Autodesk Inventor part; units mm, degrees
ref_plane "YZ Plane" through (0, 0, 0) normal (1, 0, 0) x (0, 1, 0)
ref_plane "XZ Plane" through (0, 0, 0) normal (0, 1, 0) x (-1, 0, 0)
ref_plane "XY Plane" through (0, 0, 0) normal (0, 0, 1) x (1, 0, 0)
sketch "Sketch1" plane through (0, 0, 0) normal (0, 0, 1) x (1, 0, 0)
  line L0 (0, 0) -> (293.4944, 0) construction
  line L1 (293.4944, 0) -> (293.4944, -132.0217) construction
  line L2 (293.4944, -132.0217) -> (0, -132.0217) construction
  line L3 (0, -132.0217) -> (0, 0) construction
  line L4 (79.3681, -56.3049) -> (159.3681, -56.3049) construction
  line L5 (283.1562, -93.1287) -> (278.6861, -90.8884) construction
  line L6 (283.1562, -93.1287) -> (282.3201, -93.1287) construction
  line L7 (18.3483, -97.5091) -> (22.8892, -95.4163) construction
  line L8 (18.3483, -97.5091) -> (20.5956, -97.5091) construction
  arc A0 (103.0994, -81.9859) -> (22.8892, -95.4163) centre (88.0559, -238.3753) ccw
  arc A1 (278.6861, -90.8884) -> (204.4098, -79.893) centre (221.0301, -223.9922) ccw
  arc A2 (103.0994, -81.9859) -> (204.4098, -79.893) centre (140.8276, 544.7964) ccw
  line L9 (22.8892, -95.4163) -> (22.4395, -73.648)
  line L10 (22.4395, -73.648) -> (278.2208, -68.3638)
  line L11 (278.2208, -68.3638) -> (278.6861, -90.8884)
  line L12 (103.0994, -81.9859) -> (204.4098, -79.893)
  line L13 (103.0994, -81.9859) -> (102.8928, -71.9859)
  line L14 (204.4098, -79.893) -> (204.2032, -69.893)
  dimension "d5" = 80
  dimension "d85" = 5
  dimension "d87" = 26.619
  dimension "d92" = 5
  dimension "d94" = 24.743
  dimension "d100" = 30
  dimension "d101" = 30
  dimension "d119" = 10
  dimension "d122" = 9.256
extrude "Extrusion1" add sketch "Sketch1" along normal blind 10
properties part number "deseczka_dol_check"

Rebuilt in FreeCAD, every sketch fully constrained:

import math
import FreeCAD as App
import Part
import Sketcher

V = App.Vector
Q = App.Units.Quantity

doc = App.newDocument("Part")
params = doc.addObject("Spreadsheet::Sheet", "Params")
for row, (alias, value) in enumerate([
    ("pad1_length", "10 mm"),
], start=1):
    params.set(f"A{row}", alias)
    params.set(f"B{row}", "=" + value)
    params.setAlias(f"B{row}", alias)

body = doc.addObject("PartDesign::Body", "Body")

# Sketch on XY plane
sketch1 = body.newObject("Sketcher::SketchObject", "Sketch")
sketch1.AttachmentSupport = (doc.getObject("XY_Plane"), [""])
sketch1.MapMode = "FlatFace"
sketch1.addGeometry([
    Part.ArcOfCircle(Part.Circle(V(141, 545, 0), V(0, 0, 1), 628), math.radians(-93.44), math.radians(-84.19)),  # 0
    Part.ArcOfCircle(Part.Circle(V(221, -224, 0), V(0, 0, 1), 145), math.radians(67), math.radians(97)),  # 1
    Part.LineSegment(V(279, -91, 0), V(278, -68, 0)),  # 2
    Part.LineSegment(V(278, -68, 0), V(22, -74, 0)),  # 3
    Part.LineSegment(V(22, -74, 0), V(23, -95, 0)),  # 4
    Part.ArcOfCircle(Part.Circle(V(88, -238, 0), V(0, 0, 1), 157), math.radians(85), math.radians(115)),  # 5
], False)
sketch1.addConstraint([
    Sketcher.Constraint("Coincident", 0, 2, 1, 2),
    Sketcher.Constraint("Coincident", 1, 1, 2, 1),
    Sketcher.Constraint("Coincident", 2, 2, 3, 1),
    Sketcher.Constraint("Coincident", 3, 2, 4, 1),
    Sketcher.Constraint("Coincident", 4, 2, 5, 2),
    Sketcher.Constraint("Coincident", 5, 1, 0, 1),
    Sketcher.Constraint("Perpendicular", 2, 3),
    Sketcher.Constraint("Perpendicular", 3, 4),
    Sketcher.Constraint("Radius", 0, Q("627.9258 mm")),
    Sketcher.Constraint("Radius", 1, Q("145.0535 mm")),
    Sketcher.Constraint("Radius", 5, Q("157.1124 mm")),
    Sketcher.Constraint("DistanceY", 5, 3, 4, 2, Q("142.96 mm")),
    Sketcher.Constraint("DistanceX", 3, 2, 5, 1, Q("80.66 mm")),
    Sketcher.Constraint("Distance", 4, Q("21.773 mm")),
    Sketcher.Constraint("DistanceY", 1, 3, -1, 1, Q("223.991 mm")),
    Sketcher.Constraint("DistanceX", -1, 1, 5, 3, Q("88.056 mm")),
    Sketcher.Constraint("DistanceY", 0, 2, -1, 1, Q("79.893 mm")),
    Sketcher.Constraint("DistanceX", -1, 1, 1, 1, Q("278.686 mm")),
    Sketcher.Constraint("DistanceY", 3, 2, -1, 1, Q("73.648 mm")),
    Sketcher.Constraint("DistanceY", 5, 3, 1, 1, Q("147.488 mm")),
    Sketcher.Constraint("DistanceX", 0, 3, 2, 2, Q("137.393 mm")),
])
pad1 = body.newObject("PartDesign::Pad", "Pad")
pad1.Profile = sketch1
pad1.setExpression("Length", "Params.pad1_length")

doc.recompute()
